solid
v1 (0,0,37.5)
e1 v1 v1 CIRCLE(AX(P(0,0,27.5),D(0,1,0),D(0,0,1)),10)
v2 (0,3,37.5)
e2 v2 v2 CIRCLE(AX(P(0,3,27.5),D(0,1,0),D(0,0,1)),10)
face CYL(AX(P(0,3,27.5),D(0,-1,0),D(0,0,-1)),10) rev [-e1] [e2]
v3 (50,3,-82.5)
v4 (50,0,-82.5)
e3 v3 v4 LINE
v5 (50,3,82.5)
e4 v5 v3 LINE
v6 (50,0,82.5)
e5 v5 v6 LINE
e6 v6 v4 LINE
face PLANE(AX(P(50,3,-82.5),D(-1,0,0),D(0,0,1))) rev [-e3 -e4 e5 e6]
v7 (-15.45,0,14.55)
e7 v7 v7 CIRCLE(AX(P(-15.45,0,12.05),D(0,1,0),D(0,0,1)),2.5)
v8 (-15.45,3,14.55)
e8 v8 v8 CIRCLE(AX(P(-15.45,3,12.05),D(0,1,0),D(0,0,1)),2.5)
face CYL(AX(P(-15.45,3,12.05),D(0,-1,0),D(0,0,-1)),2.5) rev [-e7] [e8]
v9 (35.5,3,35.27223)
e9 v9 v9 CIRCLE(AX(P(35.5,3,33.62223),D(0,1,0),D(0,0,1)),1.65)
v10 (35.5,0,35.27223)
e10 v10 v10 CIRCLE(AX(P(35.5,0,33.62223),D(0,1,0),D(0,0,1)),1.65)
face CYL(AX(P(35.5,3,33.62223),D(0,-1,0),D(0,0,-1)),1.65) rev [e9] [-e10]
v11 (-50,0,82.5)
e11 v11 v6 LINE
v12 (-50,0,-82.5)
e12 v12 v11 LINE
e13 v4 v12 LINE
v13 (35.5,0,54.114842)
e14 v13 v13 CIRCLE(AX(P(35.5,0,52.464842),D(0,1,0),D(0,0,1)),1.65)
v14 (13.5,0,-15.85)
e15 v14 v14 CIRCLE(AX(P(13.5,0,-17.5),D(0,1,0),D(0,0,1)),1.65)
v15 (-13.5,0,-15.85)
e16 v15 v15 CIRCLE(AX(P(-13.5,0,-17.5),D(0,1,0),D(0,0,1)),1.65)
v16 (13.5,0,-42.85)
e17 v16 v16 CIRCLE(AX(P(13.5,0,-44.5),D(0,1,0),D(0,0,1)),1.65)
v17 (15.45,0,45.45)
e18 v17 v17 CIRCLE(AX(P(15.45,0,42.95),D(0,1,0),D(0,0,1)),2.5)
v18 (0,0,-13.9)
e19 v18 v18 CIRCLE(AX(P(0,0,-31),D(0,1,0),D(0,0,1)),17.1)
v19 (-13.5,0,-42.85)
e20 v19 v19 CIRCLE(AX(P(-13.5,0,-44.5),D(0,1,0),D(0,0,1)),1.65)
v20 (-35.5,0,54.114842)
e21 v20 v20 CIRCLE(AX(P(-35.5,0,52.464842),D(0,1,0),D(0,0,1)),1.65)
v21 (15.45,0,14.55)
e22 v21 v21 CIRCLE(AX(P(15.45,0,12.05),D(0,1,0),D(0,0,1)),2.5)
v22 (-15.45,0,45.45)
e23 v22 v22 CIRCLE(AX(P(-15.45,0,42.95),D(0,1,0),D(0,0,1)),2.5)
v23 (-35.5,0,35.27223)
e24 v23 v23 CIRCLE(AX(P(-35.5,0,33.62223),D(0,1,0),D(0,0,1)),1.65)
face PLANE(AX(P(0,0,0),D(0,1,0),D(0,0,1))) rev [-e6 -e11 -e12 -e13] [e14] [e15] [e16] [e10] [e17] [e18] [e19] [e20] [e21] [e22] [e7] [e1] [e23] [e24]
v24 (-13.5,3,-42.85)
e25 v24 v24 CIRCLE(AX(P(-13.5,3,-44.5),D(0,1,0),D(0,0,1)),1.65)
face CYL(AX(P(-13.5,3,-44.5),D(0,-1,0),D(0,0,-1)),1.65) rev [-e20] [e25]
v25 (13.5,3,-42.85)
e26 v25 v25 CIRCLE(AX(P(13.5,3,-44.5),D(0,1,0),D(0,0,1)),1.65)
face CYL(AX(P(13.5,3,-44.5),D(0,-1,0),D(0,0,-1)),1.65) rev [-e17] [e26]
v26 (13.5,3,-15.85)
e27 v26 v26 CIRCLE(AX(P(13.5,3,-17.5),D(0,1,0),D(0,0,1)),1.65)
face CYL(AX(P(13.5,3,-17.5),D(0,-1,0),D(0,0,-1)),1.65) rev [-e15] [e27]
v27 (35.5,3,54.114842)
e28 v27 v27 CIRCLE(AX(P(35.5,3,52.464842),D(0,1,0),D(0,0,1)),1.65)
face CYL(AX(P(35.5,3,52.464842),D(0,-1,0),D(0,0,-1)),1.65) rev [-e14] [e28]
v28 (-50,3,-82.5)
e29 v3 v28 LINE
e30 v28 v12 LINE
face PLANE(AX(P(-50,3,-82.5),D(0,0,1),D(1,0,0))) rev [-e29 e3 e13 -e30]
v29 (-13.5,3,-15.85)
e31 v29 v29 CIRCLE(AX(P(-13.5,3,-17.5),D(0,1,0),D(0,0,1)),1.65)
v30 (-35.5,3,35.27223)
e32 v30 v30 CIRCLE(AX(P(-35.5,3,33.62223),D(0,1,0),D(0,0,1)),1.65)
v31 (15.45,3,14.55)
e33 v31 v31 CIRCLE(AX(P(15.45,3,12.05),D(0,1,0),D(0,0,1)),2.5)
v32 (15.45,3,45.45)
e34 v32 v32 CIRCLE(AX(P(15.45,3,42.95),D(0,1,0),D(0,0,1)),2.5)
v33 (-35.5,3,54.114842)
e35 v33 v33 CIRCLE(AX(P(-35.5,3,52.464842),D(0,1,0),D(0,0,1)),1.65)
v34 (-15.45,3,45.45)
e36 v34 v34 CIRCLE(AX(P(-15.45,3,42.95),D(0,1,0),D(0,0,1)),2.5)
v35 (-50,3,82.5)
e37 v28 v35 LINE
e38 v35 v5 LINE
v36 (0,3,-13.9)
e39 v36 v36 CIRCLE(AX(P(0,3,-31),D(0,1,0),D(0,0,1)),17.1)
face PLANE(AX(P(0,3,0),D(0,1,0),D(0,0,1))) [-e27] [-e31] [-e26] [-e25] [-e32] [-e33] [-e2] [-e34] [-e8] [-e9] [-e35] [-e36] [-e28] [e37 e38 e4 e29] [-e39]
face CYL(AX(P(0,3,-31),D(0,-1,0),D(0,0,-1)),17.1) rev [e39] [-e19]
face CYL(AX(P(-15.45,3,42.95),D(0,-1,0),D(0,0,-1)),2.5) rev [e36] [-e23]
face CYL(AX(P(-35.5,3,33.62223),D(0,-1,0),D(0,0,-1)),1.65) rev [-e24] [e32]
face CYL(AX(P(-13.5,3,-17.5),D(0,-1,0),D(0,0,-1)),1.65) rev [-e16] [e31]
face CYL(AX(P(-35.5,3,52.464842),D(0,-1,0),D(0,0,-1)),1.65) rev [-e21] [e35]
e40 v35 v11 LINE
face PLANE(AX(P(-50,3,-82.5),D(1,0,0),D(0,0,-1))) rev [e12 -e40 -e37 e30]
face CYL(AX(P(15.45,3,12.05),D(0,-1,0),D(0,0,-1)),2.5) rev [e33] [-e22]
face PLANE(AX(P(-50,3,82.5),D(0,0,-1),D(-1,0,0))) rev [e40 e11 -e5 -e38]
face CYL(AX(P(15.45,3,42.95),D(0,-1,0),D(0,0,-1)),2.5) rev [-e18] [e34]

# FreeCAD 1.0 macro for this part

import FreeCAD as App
import Part
import Sketcher


def add_polygon(sketch, points):
    """Adds a closed chain of lines whose ends are joined by coincident constraints."""
    first, n = sketch.GeometryCount, len(points)
    for a, b in zip(points, points[1:] + points[:1]):
        sketch.addGeometry(Part.LineSegment(App.Vector(*a, 0), App.Vector(*b, 0)), False)
    for i in range(n):
        sketch.addConstraint(Sketcher.Constraint("Coincident", first + i, 2, first + (i + 1) % n, 1))

doc = App.newDocument("Part")
body = doc.addObject("PartDesign::Body", "Body")

# Sketch on XZ plane
sketch1 = body.newObject("Sketcher::SketchObject", "Sketch")
sketch1.AttachmentSupport = (doc.getObject("XZ_Plane"), [""])
sketch1.MapMode = "FlatFace"
add_polygon(sketch1, [(-50, -82.5), (-50, 82.5), (50, 82.5), (50, -82.5)])  # lines 0-3
sketch1.addGeometry(Part.Circle(App.Vector(-35.5, 52.5, 0), App.Vector(0, 0, 1), 1.6), False)  # 4
sketch1.addGeometry(Part.Circle(App.Vector(-35.5, 33.6, 0), App.Vector(0, 0, 1), 1.6), False)  # 5
sketch1.addGeometry(Part.Circle(App.Vector(-15.4, 43, 0), App.Vector(0, 0, 1), 2.5), False)  # 6
sketch1.addGeometry(Part.Circle(App.Vector(-15.4, 12.1, 0), App.Vector(0, 0, 1), 2.5), False)  # 7
sketch1.addGeometry(Part.Circle(App.Vector(15.4, 43, 0), App.Vector(0, 0, 1), 2.5), False)  # 8
sketch1.addGeometry(Part.Circle(App.Vector(35.5, 52.5, 0), App.Vector(0, 0, 1), 1.6), False)  # 9
sketch1.addGeometry(Part.Circle(App.Vector(35.5, 33.6, 0), App.Vector(0, 0, 1), 1.6), False)  # 10
sketch1.addGeometry(Part.Circle(App.Vector(0, 27.5, 0), App.Vector(0, 0, 1), 10), False)  # 11
sketch1.addGeometry(Part.Circle(App.Vector(15.4, 12.1, 0), App.Vector(0, 0, 1), 2.5), False)  # 12
sketch1.addGeometry(Part.Circle(App.Vector(-13.5, -17.5, 0), App.Vector(0, 0, 1), 1.6), False)  # 13
sketch1.addGeometry(Part.Circle(App.Vector(-13.5, -44.5, 0), App.Vector(0, 0, 1), 1.6), False)  # 14
sketch1.addGeometry(Part.Circle(App.Vector(13.5, -17.5, 0), App.Vector(0, 0, 1), 1.6), False)  # 15
sketch1.addGeometry(Part.Circle(App.Vector(0, -31, 0), App.Vector(0, 0, 1), 17.1), False)  # 16
sketch1.addGeometry(Part.Circle(App.Vector(13.5, -44.5, 0), App.Vector(0, 0, 1), 1.6), False)  # 17
sketch1.addConstraint([
    Sketcher.Constraint("Vertical", 0),
    Sketcher.Constraint("Horizontal", 1),
    Sketcher.Constraint("Vertical", 2),
    Sketcher.Constraint("Horizontal", 3),
    Sketcher.Constraint("Equal", 4, 5),
    Sketcher.Constraint("Equal", 6, 7),
    Sketcher.Constraint("Equal", 7, 8),
    Sketcher.Constraint("Equal", 5, 9),
    Sketcher.Constraint("Equal", 9, 10),
    Sketcher.Constraint("Equal", 8, 12),
    Sketcher.Constraint("Equal", 10, 13),
    Sketcher.Constraint("Equal", 13, 14),
    Sketcher.Constraint("Equal", 14, 15),
    Sketcher.Constraint("Equal", 15, 17),
    Sketcher.Constraint("Symmetric", 0, 2, 2, 2, -1, 1),
    Sketcher.Constraint("Symmetric", 6, 3, 8, 3, -2),
    Sketcher.Constraint("Symmetric", 4, 3, 9, 3, -2),
    Sketcher.Constraint("Symmetric", 5, 3, 10, 3, -2),
    Sketcher.Constraint("Symmetric", 7, 3, 12, 3, -2),
    Sketcher.Constraint("Symmetric", 13, 3, 15, 3, -2),
    Sketcher.Constraint("Symmetric", 14, 3, 17, 3, -2),
    Sketcher.Constraint("PointOnObject", 11, 3, -2),
    Sketcher.Constraint("PointOnObject", 16, 3, -2),
    Sketcher.Constraint("Vertical", 4, 3, 5, 3),
    Sketcher.Constraint("Vertical", 6, 3, 7, 3),
    Sketcher.Constraint("Vertical", 13, 3, 14, 3),
    Sketcher.Constraint("Diameter", 6, 5.0),
    Sketcher.Constraint("Diameter", 11, 20.0),
    Sketcher.Constraint("Diameter", 4, 3.3),
    Sketcher.Constraint("Diameter", 16, 34.2),
    Sketcher.Constraint("DistanceX", 1, 1, 1, 2, 100.0),
    Sketcher.Constraint("DistanceY", 0, 1, 0, 2, 165.0),
    Sketcher.Constraint("DistanceY", 16, 3, -1, 1, 31.0),
    Sketcher.Constraint("DistanceX", 4, 3, 9, 3, 71.0),
    Sketcher.Constraint("DistanceY", 13, 3, 11, 3, 45.0),
    Sketcher.Constraint("DistanceX", 5, 3, 13, 3, 22.0),
    Sketcher.Constraint("DistanceY", 14, 3, 13, 3, 27.0),
    Sketcher.Constraint("DistanceY", 11, 3, 0, 2, 55.0),
    Sketcher.Constraint("DistanceY", 7, 3, 6, 3, 30.9),
    Sketcher.Constraint("DistanceX", 6, 3, 8, 3, 30.9),
    Sketcher.Constraint("DistanceY", -1, 1, 6, 3, 42.95),
    Sketcher.Constraint("DistanceY", -1, 1, 5, 3, 33.62223),
    Sketcher.Constraint("DistanceY", -1, 1, 4, 3, 52.464842),
])
pad1 = body.newObject("PartDesign::Pad", "Pad")
pad1.Profile = sketch1
pad1.Length = 3
pad1.Reversed = True

doc.recompute()
